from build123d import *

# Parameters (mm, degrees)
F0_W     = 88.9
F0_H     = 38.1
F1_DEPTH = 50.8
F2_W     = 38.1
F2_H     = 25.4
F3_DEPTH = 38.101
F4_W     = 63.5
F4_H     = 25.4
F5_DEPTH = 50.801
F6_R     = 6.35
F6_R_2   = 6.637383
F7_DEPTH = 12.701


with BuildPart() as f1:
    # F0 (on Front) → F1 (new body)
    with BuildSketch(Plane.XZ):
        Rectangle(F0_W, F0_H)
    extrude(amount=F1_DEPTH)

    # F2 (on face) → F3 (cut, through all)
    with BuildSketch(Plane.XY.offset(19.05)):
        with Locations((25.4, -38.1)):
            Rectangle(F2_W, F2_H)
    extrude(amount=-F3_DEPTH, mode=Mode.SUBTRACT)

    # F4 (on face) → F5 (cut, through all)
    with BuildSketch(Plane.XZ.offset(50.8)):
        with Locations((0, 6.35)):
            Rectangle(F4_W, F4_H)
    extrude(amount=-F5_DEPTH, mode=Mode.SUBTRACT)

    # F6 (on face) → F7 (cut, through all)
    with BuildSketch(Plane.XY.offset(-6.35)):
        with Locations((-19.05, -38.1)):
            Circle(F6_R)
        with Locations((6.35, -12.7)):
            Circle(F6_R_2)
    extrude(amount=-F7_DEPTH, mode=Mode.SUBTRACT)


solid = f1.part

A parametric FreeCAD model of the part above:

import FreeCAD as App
import Part
import Sketcher
from FreeCAD import Vector
Q = App.Units.Quantity

doc = App.newDocument("Part")
body = doc.addObject("PartDesign::Body", "Body")

# Sketch on XZ plane
sketch1 = doc.addObject("Sketcher::SketchObject", "Sketch")
body.addObject(sketch1)
sketch1.AttachmentSupport = (doc.XZ_Plane, [""])
sketch1.MapMode = "FlatFace"
sketch1.addGeometry([
    Part.LineSegment(Vector(-44, 19, 0), Vector(-44, -19, 0)),
    Part.LineSegment(Vector(-44, -19, 0), Vector(44, -19, 0)),
    Part.LineSegment(Vector(44, -19, 0), Vector(44, 19, 0)),
    Part.LineSegment(Vector(44, 19, 0), Vector(-44, 19, 0)),
], False)
sketch1.addConstraint([
    Sketcher.Constraint("Coincident", 0, 2, 1, 1),
    Sketcher.Constraint("Coincident", 1, 2, 2, 1),
    Sketcher.Constraint("Coincident", 2, 2, 3, 1),
    Sketcher.Constraint("Coincident", 3, 2, 0, 1),
    Sketcher.Constraint("Vertical", 0),
    Sketcher.Constraint("Horizontal", 1),
    Sketcher.Constraint("Vertical", 2),
    Sketcher.Constraint("Horizontal", 3),
    Sketcher.Constraint("Symmetric", 0, 2, 2, 2, -1, 1),
    Sketcher.Constraint("DistanceX", 1, 1, 1, 2, Q("3.5 in")),
    Sketcher.Constraint("DistanceY", 0, 2, 0, 1, Q("1.5 in")),
])
pad1 = doc.addObject("PartDesign::Pad", "Pad")
body.addObject(pad1)
pad1.Profile = sketch1
pad1.Length = Q("2 in")

# Sketch on XY plane
sketch2 = doc.addObject("Sketcher::SketchObject", "Sketch001")
body.addObject(sketch2)
sketch2.AttachmentSupport = (doc.XY_Plane, [""])
sketch2.MapMode = "FlatFace"
sketch2.AttachmentOffset = App.Placement(Vector(0, 0, 0.75 * 25.4), App.Rotation())
sketch2.addGeometry([
    Part.LineSegment(Vector(6, -25, 0), Vector(6, -51, 0)),
    Part.LineSegment(Vector(6, -51, 0), Vector(44, -51, 0)),
    Part.LineSegment(Vector(44, -51, 0), Vector(44, -25, 0)),
    Part.LineSegment(Vector(44, -25, 0), Vector(6, -25, 0)),
], False)
sketch2.addConstraint([
    Sketcher.Constraint("Coincident", 0, 2, 1, 1),
    Sketcher.Constraint("Coincident", 1, 2, 2, 1),
    Sketcher.Constraint("Coincident", 2, 2, 3, 1),
    Sketcher.Constraint("Coincident", 3, 2, 0, 1),
    Sketcher.Constraint("Vertical", 0),
    Sketcher.Constraint("Horizontal", 1),
    Sketcher.Constraint("Vertical", 2),
    Sketcher.Constraint("Horizontal", 3),
    Sketcher.Constraint("DistanceY", 0, 2, 0, 1, Q("1 in")),
    Sketcher.Constraint("DistanceX", 1, 1, 1, 2, Q("1.5 in")),
    Sketcher.Constraint("DistanceY", 0, 2, -1, 1, Q("2 in")),
    Sketcher.Constraint("DistanceX", -1, 1, 0, 2, Q("0.25 in")),
])
pocket1 = doc.addObject("PartDesign::Pocket", "Pocket")
body.addObject(pocket1)
pocket1.Profile = sketch2
pocket1.Type = "ThroughAll"

# Sketch on XZ plane
sketch3 = doc.addObject("Sketcher::SketchObject", "Sketch002")
body.addObject(sketch3)
sketch3.AttachmentSupport = (doc.XZ_Plane, [""])
sketch3.MapMode = "FlatFace"
sketch3.AttachmentOffset = App.Placement(Vector(0, 0, 2 * 25.4), App.Rotation())
sketch3.addGeometry([
    Part.LineSegment(Vector(-32, 19, 0), Vector(-32, -6, 0)),
    Part.LineSegment(Vector(-32, -6, 0), Vector(32, -6, 0)),
    Part.LineSegment(Vector(32, -6, 0), Vector(32, 19, 0)),
    Part.LineSegment(Vector(32, 19, 0), Vector(-32, 19, 0)),
], False)
sketch3.addConstraint([
    Sketcher.Constraint("Coincident", 0, 2, 1, 1),
    Sketcher.Constraint("Coincident", 1, 2, 2, 1),
    Sketcher.Constraint("Coincident", 2, 2, 3, 1),
    Sketcher.Constraint("Coincident", 3, 2, 0, 1),
    Sketcher.Constraint("Vertical", 0),
    Sketcher.Constraint("Horizontal", 1),
    Sketcher.Constraint("Vertical", 2),
    Sketcher.Constraint("Horizontal", 3),
    Sketcher.Constraint("DistanceY", 0, 2, 0, 1, Q("1 in")),
    Sketcher.Constraint("DistanceX", 1, 1, 1, 2, Q("2.5 in")),
    Sketcher.Constraint("DistanceX", 0, 2, -1, 1, Q("1.25 in")),
    Sketcher.Constraint("DistanceY", 0, 2, -1, 1, Q("0.25 in")),
])
pocket2 = doc.addObject("PartDesign::Pocket", "Pocket001")
body.addObject(pocket2)
pocket2.Profile = sketch3
pocket2.Type = "ThroughAll"

# Sketch on XY plane
sketch4 = doc.addObject("Sketcher::SketchObject", "Sketch003")
body.addObject(sketch4)
sketch4.AttachmentSupport = (doc.XY_Plane, [""])
sketch4.MapMode = "FlatFace"
sketch4.AttachmentOffset = App.Placement(Vector(0, 0, -0.25 * 25.4), App.Rotation())
sketch4.addGeometry([
    Part.Circle(Vector(-19, -38, 0), Vector(0, 0, 1), 6),
    Part.Circle(Vector(6, -13, 0), Vector(0, 0, 1), 7),
], False)
sketch4.addConstraint([
    Sketcher.Constraint("Diameter", 0, Q("0.5 in")),
    Sketcher.Constraint("DistanceX", 0, 3, 1, 3, Q("1 in")),
    Sketcher.Constraint("DistanceY", 0, 3, 1, 3, Q("1 in")),
    Sketcher.Constraint("DistanceY", 0, 3, -1, 1, Q("1.5 in")),
    Sketcher.Constraint("DistanceX", 0, 3, -1, 1, Q("0.75 in")),
    Sketcher.Constraint("Diameter", 1, Q("13.274766 mm")),
])
pocket3 = doc.addObject("PartDesign::Pocket", "Pocket002")
body.addObject(pocket3)
pocket3.Profile = sketch4
pocket3.Type = "ThroughAll"

doc.recompute()
